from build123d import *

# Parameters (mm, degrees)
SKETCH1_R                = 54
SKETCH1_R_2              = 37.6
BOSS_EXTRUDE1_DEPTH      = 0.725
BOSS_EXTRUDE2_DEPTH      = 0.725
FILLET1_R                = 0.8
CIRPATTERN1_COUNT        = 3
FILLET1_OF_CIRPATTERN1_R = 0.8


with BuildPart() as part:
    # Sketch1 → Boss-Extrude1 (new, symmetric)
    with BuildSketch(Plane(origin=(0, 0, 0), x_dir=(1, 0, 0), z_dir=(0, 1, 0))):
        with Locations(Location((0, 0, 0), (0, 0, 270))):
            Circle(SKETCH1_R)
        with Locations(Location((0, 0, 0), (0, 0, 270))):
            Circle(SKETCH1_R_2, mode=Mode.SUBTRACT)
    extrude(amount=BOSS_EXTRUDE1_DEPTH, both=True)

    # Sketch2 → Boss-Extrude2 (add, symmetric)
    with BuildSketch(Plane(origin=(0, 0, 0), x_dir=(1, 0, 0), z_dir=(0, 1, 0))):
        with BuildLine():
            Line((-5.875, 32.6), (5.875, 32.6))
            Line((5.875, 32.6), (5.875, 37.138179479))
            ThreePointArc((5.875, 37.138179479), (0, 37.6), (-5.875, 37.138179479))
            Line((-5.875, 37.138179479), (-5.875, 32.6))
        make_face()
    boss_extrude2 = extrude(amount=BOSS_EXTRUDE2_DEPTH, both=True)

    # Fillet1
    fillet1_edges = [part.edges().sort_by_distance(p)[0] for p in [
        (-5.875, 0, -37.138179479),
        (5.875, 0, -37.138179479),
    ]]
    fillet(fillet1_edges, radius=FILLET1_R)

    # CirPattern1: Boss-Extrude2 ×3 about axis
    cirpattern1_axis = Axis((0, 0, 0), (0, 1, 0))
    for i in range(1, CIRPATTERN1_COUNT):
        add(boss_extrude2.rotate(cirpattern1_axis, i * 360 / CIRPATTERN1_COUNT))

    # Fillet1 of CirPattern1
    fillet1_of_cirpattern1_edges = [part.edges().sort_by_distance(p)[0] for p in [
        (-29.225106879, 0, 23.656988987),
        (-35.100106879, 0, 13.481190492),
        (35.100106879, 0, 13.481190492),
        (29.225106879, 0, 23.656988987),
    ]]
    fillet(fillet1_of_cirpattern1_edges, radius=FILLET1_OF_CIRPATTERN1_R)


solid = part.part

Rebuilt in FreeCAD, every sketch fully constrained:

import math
import FreeCAD as App
import Part
import Sketcher
from FreeCAD import Vector


def edges_at(feature, points):
    """Names of the edges that pass closest to the given points."""
    edges = feature.Shape.Edges
    near = lambda p: min(range(len(edges)), key=lambda i: edges[i].distToShape(Part.Vertex(*p))[0])
    return sorted({f"Edge{near(p) + 1}" for p in points})

doc = App.newDocument("Part")
body = doc.addObject("PartDesign::Body", "Body")

sketch1 = doc.addObject("Sketcher::SketchObject", "Sketch")
body.addObject(sketch1)
sketch1.AttachmentSupport = (doc.XZ_Plane, [""])
sketch1.MapMode = "FlatFace"
sketch1.addGeometry([
    Part.Circle(Vector(0, 0, 0), Vector(0, 0, 1), 54),
    Part.Circle(Vector(0, 0, 0), Vector(0, 0, 1), 37.6),
], False)
sketch1.addConstraint([
    Sketcher.Constraint("Coincident", 0, 3, -1, 1),
    Sketcher.Constraint("Coincident", 1, 3, -1, 1),
    Sketcher.Constraint("Diameter", 0, 108.0),
    Sketcher.Constraint("Diameter", 1, 75.2),
])
pad1 = doc.addObject("PartDesign::Pad", "Pad")
body.addObject(pad1)
pad1.Profile = sketch1
pad1.Length = 1.45
pad1.Midplane = True

sketch2 = doc.addObject("Sketcher::SketchObject", "Sketch001")
body.addObject(sketch2)
sketch2.AttachmentSupport = (doc.XZ_Plane, [""])
sketch2.MapMode = "FlatFace"
sketch2.addGeometry([
    Part.LineSegment(Vector(-5.875, -32.6, 0), Vector(5.875, -32.6, 0)),
    Part.LineSegment(Vector(5.875, -32.6, 0), Vector(5.875, -37.138179, 0)),
    Part.ArcOfCircle(Part.Circle(Vector(0, 0, 0), Vector(0, 0, 1), 37.6), math.radians(-98.989299), math.radians(-81.010701)),
    Part.LineSegment(Vector(-5.875, -37.138179, 0), Vector(-5.875, -32.6, 0)),
], False)
sketch2.addConstraint([
    Sketcher.Constraint("Coincident", 0, 2, 1, 1),
    Sketcher.Constraint("Coincident", 1, 2, 2, 2),
    Sketcher.Constraint("Coincident", 2, 1, 3, 1),
    Sketcher.Constraint("Coincident", 3, 2, 0, 1),
    Sketcher.Constraint("Horizontal", 0),
    Sketcher.Constraint("Vertical", 1),
    Sketcher.Constraint("Vertical", 3),
    Sketcher.Constraint("Coincident", 2, 3, -1, 1),
    Sketcher.Constraint("Horizontal", 1, 2, 2, 1),
    Sketcher.Constraint("Radius", 2, 37.6),
    Sketcher.Constraint("DistanceX", 0, 1, 0, 2, 11.75),
    Sketcher.Constraint("DistanceY", 0, 2, -1, 1, 32.6),
])
pad2 = doc.addObject("PartDesign::Pad", "Pad001")
body.addObject(pad2)
pad2.Profile = sketch2
pad2.Length = 1.45
pad2.Midplane = True
doc.recompute()

fillet = doc.addObject("PartDesign::Fillet", "Fillet")
body.addObject(fillet)
fillet.Base = (pad2, edges_at(pad2, [(-5.875, 0, -37.138), (5.875, 0, -37.138)]))
fillet.Radius = 0.8
doc.recompute()

polarpattern = doc.addObject("PartDesign::PolarPattern", "PolarPattern")
body.addObject(polarpattern)
polarpattern.Originals = [pad2]
polarpattern.Axis = (doc.Y_Axis, [""])
polarpattern.Angle = 360
polarpattern.Occurrences = 3
body.Tip = polarpattern
doc.recompute()

fillet2 = doc.addObject("PartDesign::Fillet", "Fillet001")
body.addObject(fillet2)
fillet2.Base = (polarpattern, edges_at(polarpattern, [
    (-29.225, 0, 23.657),
    (-35.1, 0, 13.481),
    (35.1, 0, 13.481),
    (29.225, 0, 23.657),
]))
fillet2.Radius = 0.8

doc.recompute()
